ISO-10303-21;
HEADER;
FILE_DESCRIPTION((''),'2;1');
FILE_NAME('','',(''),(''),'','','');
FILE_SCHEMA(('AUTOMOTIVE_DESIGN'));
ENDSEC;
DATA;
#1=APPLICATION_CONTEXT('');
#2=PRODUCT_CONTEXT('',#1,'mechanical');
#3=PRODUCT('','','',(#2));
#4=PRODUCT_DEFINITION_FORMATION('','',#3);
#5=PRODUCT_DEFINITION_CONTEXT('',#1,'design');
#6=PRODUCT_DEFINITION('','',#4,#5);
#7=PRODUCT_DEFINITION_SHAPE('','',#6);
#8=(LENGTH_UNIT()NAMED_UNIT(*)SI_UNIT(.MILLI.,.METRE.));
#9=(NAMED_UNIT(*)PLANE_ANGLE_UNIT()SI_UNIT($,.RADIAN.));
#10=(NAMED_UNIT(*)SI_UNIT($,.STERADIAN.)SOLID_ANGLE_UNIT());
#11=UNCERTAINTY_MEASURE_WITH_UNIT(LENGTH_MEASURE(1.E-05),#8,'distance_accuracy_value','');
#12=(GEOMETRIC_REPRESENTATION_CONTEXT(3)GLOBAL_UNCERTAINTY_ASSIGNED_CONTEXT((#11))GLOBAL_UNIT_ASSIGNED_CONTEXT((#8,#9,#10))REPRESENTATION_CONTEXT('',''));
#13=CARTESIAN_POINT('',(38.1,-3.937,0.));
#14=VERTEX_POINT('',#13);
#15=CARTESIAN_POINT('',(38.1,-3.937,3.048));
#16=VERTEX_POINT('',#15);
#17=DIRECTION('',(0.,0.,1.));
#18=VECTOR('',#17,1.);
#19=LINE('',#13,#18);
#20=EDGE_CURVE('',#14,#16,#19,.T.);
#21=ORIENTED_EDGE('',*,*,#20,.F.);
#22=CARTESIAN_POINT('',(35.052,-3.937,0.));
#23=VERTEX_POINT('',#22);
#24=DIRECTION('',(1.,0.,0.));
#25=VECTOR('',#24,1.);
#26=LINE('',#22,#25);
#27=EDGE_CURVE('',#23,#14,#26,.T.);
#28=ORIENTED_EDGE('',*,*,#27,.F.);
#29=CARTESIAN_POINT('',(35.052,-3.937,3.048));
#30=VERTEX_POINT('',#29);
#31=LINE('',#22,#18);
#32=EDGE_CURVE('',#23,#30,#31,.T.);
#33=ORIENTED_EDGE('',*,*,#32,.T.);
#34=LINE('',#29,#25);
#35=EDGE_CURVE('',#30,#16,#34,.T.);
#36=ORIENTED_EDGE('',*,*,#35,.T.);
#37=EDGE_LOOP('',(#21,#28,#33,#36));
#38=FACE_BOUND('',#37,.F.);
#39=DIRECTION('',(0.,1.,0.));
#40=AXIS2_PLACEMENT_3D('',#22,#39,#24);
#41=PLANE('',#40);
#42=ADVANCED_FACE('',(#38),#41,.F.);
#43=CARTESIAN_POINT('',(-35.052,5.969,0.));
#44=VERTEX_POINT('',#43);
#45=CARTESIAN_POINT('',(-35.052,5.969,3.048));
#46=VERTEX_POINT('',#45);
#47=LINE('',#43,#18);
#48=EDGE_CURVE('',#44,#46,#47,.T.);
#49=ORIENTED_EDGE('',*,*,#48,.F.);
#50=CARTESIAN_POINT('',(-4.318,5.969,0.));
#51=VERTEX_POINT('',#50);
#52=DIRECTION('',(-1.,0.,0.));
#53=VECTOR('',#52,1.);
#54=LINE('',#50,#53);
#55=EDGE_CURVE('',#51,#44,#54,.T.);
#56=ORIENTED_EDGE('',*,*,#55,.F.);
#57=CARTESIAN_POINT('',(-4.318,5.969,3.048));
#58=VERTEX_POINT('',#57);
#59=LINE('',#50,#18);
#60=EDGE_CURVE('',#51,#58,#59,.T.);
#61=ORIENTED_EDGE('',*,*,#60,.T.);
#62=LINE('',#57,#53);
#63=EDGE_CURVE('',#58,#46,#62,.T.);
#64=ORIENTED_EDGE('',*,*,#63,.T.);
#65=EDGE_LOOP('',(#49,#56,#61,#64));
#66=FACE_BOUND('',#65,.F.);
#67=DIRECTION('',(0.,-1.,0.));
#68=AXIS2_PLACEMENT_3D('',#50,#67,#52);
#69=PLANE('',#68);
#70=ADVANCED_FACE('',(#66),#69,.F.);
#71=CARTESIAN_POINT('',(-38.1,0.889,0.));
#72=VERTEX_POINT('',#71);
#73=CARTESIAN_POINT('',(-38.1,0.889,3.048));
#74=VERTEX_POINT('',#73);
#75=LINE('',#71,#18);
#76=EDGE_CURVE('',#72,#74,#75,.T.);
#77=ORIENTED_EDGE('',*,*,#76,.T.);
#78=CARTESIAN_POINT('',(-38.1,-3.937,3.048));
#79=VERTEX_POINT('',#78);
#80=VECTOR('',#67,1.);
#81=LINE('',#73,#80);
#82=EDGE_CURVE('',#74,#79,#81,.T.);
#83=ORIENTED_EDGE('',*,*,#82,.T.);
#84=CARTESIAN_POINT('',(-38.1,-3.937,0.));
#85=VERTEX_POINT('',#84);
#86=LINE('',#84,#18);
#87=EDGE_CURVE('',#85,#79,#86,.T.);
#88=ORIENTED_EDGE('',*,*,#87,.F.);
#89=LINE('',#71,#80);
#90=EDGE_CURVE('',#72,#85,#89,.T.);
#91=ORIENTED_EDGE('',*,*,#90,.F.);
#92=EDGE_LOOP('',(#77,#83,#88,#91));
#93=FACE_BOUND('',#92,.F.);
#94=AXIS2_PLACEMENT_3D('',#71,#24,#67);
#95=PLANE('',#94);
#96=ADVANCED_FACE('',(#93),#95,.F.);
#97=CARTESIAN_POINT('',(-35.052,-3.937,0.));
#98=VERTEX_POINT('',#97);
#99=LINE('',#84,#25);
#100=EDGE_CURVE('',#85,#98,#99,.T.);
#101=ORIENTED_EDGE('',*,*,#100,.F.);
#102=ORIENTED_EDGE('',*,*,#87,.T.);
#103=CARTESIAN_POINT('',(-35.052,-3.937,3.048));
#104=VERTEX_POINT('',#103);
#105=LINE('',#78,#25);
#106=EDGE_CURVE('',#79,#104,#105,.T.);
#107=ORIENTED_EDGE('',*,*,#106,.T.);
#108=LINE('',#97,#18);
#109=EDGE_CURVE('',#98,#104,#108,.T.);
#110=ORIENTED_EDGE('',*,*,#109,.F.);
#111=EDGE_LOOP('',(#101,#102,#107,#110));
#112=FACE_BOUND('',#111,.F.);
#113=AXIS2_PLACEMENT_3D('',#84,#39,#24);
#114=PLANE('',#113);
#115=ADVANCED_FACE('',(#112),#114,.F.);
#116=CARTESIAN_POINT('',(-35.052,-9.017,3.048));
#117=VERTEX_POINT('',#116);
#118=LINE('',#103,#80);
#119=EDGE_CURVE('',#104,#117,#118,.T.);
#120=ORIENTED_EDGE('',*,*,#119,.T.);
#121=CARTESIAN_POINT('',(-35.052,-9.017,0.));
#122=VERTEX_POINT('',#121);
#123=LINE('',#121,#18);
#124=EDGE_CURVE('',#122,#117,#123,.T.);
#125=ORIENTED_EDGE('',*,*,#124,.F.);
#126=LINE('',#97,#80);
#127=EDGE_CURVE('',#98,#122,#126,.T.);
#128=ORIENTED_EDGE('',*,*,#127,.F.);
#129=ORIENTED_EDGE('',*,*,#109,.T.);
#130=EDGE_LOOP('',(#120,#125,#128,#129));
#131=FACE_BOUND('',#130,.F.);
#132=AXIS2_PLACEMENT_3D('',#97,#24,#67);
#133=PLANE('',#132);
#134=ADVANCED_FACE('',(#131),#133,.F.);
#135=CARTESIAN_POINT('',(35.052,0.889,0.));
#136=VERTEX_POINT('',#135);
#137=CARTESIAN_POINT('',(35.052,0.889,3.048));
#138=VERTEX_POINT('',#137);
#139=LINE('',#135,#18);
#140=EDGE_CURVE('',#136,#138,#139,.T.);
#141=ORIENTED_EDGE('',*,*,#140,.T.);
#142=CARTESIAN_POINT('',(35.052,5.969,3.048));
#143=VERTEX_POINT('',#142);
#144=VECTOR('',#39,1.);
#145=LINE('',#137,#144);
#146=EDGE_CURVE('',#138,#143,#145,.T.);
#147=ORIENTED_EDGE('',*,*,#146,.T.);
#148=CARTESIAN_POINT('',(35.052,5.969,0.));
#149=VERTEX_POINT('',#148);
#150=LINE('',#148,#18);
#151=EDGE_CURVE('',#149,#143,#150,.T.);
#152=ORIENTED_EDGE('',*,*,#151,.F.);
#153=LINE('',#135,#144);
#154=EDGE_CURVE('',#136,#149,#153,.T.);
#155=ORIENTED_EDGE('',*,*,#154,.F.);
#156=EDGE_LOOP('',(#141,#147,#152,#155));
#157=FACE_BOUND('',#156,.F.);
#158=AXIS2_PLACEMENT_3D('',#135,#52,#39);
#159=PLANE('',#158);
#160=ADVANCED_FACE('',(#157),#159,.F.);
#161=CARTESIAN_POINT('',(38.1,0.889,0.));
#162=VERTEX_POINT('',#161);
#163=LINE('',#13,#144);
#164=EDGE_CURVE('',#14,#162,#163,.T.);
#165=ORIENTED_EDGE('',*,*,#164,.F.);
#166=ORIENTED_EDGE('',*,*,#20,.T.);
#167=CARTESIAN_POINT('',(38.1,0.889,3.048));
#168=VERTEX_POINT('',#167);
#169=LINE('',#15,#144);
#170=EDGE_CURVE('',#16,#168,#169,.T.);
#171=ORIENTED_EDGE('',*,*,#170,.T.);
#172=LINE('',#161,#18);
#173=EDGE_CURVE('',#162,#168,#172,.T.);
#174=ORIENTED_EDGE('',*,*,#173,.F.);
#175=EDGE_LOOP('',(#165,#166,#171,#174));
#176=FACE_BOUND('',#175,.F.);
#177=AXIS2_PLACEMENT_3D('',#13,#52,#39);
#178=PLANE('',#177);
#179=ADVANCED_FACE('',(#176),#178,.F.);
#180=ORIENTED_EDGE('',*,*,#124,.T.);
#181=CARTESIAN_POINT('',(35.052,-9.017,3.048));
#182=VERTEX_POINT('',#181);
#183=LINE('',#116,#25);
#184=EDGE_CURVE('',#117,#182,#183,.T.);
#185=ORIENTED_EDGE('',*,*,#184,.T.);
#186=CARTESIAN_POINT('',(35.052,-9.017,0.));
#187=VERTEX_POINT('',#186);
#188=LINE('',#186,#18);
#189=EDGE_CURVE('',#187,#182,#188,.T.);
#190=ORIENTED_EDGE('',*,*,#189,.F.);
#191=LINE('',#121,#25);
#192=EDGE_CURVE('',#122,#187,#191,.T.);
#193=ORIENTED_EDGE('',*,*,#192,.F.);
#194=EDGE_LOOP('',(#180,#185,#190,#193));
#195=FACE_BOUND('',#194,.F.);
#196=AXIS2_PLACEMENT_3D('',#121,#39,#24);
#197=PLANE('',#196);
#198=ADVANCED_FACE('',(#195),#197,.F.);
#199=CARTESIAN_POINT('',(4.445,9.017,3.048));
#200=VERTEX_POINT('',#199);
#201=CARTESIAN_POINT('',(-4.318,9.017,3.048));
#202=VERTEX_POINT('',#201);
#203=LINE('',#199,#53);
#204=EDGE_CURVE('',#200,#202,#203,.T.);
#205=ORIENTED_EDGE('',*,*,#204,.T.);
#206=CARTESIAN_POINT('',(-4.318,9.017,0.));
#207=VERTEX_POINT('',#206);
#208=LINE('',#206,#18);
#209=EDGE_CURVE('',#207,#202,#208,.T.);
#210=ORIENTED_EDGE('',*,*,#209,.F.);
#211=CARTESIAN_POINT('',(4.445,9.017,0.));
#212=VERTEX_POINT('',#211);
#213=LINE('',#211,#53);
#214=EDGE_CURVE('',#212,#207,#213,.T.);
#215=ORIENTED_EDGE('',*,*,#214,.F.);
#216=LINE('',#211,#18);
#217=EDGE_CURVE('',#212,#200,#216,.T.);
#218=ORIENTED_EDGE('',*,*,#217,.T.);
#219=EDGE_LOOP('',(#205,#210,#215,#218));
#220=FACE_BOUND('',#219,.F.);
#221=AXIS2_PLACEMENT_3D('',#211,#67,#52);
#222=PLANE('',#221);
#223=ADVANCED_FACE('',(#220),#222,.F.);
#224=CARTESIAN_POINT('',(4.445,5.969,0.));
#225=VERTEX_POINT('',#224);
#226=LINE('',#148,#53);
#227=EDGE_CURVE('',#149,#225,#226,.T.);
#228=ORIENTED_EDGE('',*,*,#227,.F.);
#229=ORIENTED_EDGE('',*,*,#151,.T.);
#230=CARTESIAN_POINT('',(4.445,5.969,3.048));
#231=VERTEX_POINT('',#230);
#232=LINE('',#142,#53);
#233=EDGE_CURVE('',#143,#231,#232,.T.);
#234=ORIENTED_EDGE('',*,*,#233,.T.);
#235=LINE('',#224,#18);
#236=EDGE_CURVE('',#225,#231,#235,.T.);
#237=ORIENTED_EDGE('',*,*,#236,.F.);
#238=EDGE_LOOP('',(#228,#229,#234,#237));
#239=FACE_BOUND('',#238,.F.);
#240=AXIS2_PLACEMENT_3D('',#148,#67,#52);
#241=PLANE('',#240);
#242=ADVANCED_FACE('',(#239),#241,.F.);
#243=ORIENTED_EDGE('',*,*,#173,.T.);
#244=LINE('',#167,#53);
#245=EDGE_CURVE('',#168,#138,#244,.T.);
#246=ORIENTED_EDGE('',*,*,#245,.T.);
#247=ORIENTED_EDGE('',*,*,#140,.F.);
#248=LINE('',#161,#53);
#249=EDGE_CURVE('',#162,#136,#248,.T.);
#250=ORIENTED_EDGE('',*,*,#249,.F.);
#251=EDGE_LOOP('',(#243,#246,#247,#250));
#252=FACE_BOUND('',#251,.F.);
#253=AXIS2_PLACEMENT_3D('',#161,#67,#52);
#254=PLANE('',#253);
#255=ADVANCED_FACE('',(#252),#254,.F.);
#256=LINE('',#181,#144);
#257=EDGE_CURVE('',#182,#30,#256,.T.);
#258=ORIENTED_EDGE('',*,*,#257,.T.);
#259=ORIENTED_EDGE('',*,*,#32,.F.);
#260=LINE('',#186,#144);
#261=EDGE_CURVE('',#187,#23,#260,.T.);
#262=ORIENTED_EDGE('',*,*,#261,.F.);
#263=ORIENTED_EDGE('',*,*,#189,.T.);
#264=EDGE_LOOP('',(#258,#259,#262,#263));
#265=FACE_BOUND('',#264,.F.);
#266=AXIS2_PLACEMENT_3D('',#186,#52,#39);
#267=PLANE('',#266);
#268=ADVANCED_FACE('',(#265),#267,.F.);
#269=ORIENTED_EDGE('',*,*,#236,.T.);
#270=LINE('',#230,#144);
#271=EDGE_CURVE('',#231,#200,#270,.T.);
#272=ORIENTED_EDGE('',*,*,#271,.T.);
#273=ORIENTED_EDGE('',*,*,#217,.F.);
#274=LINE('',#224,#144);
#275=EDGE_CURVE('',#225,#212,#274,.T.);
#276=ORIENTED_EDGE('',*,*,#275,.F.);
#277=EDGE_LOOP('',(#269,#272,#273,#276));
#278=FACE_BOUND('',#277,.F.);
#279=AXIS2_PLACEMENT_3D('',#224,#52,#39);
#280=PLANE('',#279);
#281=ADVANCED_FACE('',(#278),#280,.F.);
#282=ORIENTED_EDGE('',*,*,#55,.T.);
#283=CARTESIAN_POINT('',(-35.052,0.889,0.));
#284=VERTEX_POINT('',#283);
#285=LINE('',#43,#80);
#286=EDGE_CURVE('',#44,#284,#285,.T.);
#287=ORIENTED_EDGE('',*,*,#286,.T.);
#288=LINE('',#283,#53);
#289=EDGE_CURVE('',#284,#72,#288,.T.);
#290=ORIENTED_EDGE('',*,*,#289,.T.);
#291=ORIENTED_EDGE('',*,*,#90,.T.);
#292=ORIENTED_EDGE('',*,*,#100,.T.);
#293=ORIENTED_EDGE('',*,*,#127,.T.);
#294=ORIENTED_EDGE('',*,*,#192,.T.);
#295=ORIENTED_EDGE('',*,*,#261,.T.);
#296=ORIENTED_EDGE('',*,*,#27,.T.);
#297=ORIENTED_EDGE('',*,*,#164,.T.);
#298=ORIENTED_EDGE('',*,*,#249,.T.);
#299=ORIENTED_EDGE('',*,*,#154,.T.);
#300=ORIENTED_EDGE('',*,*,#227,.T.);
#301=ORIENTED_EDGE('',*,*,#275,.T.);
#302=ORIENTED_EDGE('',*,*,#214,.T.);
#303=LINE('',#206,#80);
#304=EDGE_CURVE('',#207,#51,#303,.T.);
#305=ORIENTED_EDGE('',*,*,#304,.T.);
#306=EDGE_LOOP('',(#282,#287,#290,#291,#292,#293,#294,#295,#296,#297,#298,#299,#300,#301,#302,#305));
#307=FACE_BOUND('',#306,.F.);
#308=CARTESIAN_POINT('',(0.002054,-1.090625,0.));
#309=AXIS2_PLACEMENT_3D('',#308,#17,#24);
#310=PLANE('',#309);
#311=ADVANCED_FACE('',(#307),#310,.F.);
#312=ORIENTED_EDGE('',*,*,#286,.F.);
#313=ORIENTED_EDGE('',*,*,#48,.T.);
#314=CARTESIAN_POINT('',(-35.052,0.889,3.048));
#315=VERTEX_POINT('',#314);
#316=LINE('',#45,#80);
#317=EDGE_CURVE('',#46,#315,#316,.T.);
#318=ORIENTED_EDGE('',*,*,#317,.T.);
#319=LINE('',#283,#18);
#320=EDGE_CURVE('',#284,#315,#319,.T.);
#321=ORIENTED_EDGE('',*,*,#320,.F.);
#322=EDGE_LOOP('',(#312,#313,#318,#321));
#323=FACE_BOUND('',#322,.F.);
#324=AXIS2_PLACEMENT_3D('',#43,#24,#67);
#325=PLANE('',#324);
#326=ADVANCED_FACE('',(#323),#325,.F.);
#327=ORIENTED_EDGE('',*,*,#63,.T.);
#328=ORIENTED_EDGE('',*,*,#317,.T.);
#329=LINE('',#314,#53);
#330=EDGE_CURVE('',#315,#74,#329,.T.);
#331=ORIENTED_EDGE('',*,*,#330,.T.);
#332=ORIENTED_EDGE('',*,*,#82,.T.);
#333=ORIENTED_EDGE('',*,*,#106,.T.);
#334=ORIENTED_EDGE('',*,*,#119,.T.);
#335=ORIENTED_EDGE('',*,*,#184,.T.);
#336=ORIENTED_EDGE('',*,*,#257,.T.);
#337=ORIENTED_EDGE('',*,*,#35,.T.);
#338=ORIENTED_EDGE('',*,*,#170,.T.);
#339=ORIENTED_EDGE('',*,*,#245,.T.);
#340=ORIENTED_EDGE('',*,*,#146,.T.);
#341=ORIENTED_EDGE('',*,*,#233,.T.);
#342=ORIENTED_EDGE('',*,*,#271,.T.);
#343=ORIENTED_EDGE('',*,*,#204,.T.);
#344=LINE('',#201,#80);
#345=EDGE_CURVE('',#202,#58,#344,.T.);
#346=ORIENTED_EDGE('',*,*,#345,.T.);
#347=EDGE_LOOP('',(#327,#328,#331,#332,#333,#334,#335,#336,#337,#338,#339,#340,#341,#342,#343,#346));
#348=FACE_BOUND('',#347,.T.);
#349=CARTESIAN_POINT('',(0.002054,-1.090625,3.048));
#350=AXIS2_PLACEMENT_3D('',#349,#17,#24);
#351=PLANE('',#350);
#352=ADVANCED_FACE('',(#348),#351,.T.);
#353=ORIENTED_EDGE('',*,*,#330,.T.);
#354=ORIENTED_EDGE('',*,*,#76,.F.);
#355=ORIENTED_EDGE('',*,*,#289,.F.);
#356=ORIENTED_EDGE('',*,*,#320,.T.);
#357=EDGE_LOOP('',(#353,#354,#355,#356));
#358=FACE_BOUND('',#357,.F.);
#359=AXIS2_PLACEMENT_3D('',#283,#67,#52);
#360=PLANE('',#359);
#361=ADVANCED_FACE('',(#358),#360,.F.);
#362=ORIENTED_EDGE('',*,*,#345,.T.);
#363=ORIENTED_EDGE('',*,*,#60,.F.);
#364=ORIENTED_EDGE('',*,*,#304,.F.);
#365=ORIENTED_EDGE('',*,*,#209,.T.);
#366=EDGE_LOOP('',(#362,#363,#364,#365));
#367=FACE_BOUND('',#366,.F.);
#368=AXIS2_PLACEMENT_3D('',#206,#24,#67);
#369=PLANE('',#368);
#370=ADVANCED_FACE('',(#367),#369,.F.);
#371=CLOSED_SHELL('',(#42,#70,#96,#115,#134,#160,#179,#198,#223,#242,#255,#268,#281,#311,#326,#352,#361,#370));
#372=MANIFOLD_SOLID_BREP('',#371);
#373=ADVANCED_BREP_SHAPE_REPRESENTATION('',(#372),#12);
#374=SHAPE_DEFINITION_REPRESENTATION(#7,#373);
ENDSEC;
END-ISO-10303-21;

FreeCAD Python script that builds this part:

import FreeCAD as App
import Part
import Sketcher
Q = App.Units.Quantity


def add_polygon(sketch, points):
    """Adds a closed chain of lines whose ends are joined by coincident constraints."""
    first, n = sketch.GeometryCount, len(points)
    for a, b in zip(points, points[1:] + points[:1]):
        sketch.addGeometry(Part.LineSegment(App.Vector(*a, 0), App.Vector(*b, 0)), False)
    for i in range(n):
        sketch.addConstraint(Sketcher.Constraint("Coincident", first + i, 2, first + (i + 1) % n, 1))

doc = App.newDocument("Part")
params = doc.addObject("Spreadsheet::Sheet", "Params")
for row, (alias, value) in enumerate([
    ("sketch1_height", "0.2 in"),
    ("sketch1_width", "1.21 in"),
    ("sketch1_width2", "0.12 in"),
    ("sketch1_width3", "2.76 in"),
    ("sketch1_height2", "0.19 in"),
    ("pad1_length", "0.12 in"),
], start=1):
    params.set(f"A{row}", alias)
    params.set(f"B{row}", "=" + value)
    params.setAlias(f"B{row}", alias)

body = doc.addObject("PartDesign::Body", "Body")

# Sketch on XY plane
sketch1 = body.newObject("Sketcher::SketchObject", "Sketch")
sketch1.AttachmentSupport = (doc.getObject("XY_Plane"), [""])
sketch1.MapMode = "FlatFace"
add_polygon(sketch1, [(4.4, 9), (-4.3, 9), (-4.3, 6), (-35.1, 6), (-35.1, 0.9), (-38.1, 0.9), (-38.1, -3.9), (-35.1, -3.9), (-35.1, -9), (35.1, -9), (35.1, -3.9), (38.1, -3.9), (38.1, 0.9), (35.1, 0.9), (35.1, 6), (4.4, 6)])  # lines 0-15
sketch1.addConstraint(Sketcher.Constraint("Horizontal", 0))
sketch1.addConstraint(Sketcher.Constraint("Vertical", 1))
sketch1.addConstraint(Sketcher.Constraint("Horizontal", 2))
sketch1.addConstraint(Sketcher.Constraint("Vertical", 3))
sketch1.addConstraint(Sketcher.Constraint("Horizontal", 4))
sketch1.addConstraint(Sketcher.Constraint("Vertical", 5))
sketch1.addConstraint(Sketcher.Constraint("Horizontal", 6))
sketch1.addConstraint(Sketcher.Constraint("Vertical", 7))
sketch1.addConstraint(Sketcher.Constraint("Horizontal", 8))
sketch1.addConstraint(Sketcher.Constraint("Vertical", 9))
sketch1.addConstraint(Sketcher.Constraint("Horizontal", 10))
sketch1.addConstraint(Sketcher.Constraint("Vertical", 11))
sketch1.addConstraint(Sketcher.Constraint("Horizontal", 12))
sketch1.addConstraint(Sketcher.Constraint("Vertical", 13))
sketch1.addConstraint(Sketcher.Constraint("Horizontal", 14))
sketch1.addConstraint(Sketcher.Constraint("Vertical", 15))
sketch1.addConstraint(Sketcher.Constraint("Symmetric", 6, 2, 9, 2, -2))
sketch1.addConstraint(Sketcher.Constraint("Symmetric", 4, 2, 11, 2, -2))
sketch1.addConstraint(Sketcher.Constraint("Symmetric", 2, 2, 13, 2, -2))
sketch1.addConstraint(Sketcher.Constraint("Vertical", 3, 2, 6, 2))
sketch1.addConstraint(Sketcher.Constraint("Equal", 12, 1))
sketch1.addConstraint(Sketcher.Constraint("Equal", 3, 7))
sketch1.addConstraint(Sketcher.Constraint("DistanceY", 3, 2, 3, 1, Q("0.2 in")))
sketch1.addConstraint(Sketcher.Constraint("DistanceX", 2, 2, 2, 1, Q("1.21 in")))
sketch1.addConstraint(Sketcher.Constraint("DistanceX", 4, 2, 4, 1, Q("0.12 in")))
sketch1.addConstraint(Sketcher.Constraint("DistanceX", 8, 1, 8, 2, Q("2.76 in")))
sketch1.addConstraint(Sketcher.Constraint("DistanceY", 5, 2, 5, 1, Q("0.19 in")))
sketch1.addConstraint(Sketcher.Constraint("DistanceX", 0, 2, 0, 1, Q("0.345 in")))
sketch1.addConstraint(Sketcher.Constraint("DistanceY", -1, 1, 0, 2, Q("0.355 in")))
sketch1.setExpression("Constraints[38]", "Params.sketch1_height")
sketch1.setExpression("Constraints[39]", "Params.sketch1_width")
sketch1.setExpression("Constraints[40]", "Params.sketch1_width2")
sketch1.setExpression("Constraints[41]", "Params.sketch1_width3")
sketch1.setExpression("Constraints[42]", "Params.sketch1_height2")
pad1 = body.newObject("PartDesign::Pad", "Pad")
pad1.Profile = sketch1
pad1.setExpression("Length", "Params.pad1_length")

doc.recompute()
